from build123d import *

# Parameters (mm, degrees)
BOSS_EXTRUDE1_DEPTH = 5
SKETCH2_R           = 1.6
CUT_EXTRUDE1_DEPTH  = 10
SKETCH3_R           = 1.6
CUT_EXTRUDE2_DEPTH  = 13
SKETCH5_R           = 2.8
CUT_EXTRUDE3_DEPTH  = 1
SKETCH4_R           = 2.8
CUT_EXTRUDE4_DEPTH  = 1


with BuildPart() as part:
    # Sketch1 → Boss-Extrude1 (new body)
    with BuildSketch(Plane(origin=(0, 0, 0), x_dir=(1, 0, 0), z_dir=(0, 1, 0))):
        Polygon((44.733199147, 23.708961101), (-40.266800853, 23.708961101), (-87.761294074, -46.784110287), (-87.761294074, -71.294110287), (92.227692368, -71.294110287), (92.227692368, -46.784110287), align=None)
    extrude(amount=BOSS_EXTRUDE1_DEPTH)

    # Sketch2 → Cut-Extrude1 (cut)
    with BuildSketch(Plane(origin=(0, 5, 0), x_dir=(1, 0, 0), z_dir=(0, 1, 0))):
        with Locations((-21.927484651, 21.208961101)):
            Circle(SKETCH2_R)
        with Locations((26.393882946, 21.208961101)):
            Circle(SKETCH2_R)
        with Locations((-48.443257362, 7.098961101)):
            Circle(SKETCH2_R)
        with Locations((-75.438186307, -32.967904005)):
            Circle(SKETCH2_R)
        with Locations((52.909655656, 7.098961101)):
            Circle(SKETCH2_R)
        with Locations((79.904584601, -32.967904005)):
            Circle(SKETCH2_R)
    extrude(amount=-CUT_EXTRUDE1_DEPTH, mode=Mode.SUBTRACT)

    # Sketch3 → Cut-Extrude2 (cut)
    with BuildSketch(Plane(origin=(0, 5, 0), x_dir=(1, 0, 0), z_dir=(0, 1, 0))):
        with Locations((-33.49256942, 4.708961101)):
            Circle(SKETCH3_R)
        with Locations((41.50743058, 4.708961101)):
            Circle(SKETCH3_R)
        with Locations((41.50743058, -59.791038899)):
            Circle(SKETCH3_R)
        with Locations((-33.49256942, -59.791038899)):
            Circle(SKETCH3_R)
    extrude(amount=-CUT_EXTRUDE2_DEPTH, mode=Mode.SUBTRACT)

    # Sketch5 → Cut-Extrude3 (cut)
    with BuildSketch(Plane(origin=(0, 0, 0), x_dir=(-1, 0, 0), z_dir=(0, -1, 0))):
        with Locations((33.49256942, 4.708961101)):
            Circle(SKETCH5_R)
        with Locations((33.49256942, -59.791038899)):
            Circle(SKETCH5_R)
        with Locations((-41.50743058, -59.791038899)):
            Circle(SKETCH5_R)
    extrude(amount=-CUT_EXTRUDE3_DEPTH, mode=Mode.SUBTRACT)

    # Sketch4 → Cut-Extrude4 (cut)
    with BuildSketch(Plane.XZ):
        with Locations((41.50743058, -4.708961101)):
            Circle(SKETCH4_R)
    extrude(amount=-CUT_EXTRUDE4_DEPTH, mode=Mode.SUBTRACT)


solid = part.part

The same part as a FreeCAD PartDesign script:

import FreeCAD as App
import Part
import Sketcher
Q = App.Units.Quantity

doc = App.newDocument("Part")
params = doc.addObject("Spreadsheet::Sheet", "Params")
for row, (alias, value) in enumerate([
    ("sketch1_width", "85 mm"),
    ("sketch1_length", "85 mm"),
    ("sketch1_height", "24.51 mm"),
    ("pad1_length", "5 mm"),
    ("sketch2_diameter", "3.2 mm"),
    ("pocket1_length", "10 mm"),
    ("sketch3_diameter", "3.2 mm"),
    ("pocket2_length", "13 mm"),
    ("sketch4_diameter", "5.6 mm"),
    ("pocket3_length", "1 mm"),
    ("sketch5_diameter", "5.6 mm"),
    ("pocket4_length", "1 mm"),
], start=1):
    params.set(f"A{row}", alias)
    params.set(f"B{row}", "=" + value)
    params.setAlias(f"B{row}", alias)

body = doc.addObject("PartDesign::Body", "Body")

sketch1 = body.newObject("Sketcher::SketchObject", "Sketch")
sketch1.AttachmentSupport = (doc.getObject("XZ_Plane"), [""])
sketch1.MapMode = "FlatFace"
sketch1.addGeometry([
    Part.LineSegment(App.Vector(45, -24, 0), App.Vector(-40, -24, 0)),
    Part.LineSegment(App.Vector(-40, -24, 0), App.Vector(-88, 47, 0)),
    Part.LineSegment(App.Vector(-88, 47, 0), App.Vector(-88, 71, 0)),
    Part.LineSegment(App.Vector(-88, 71, 0), App.Vector(92, 71, 0)),
    Part.LineSegment(App.Vector(92, 71, 0), App.Vector(92, 47, 0)),
    Part.LineSegment(App.Vector(92, 47, 0), App.Vector(45, -24, 0)),
], False)
sketch1.addConstraint([
    Sketcher.Constraint("Coincident", 0, 2, 1, 1),
    Sketcher.Constraint("Coincident", 1, 2, 2, 1),
    Sketcher.Constraint("Coincident", 2, 2, 3, 1),
    Sketcher.Constraint("Coincident", 3, 2, 4, 1),
    Sketcher.Constraint("Coincident", 4, 2, 5, 1),
    Sketcher.Constraint("Coincident", 5, 2, 0, 1),
    Sketcher.Constraint("Horizontal", 0),
    Sketcher.Constraint("Vertical", 2),
    Sketcher.Constraint("Horizontal", 3),
    Sketcher.Constraint("Vertical", 4),
    Sketcher.Constraint("Horizontal", 1, 2, 4, 2),
    Sketcher.Constraint("Equal", 1, 5),
    Sketcher.Constraint("DistanceX", 0, 2, 0, 1, 85.0),
    Sketcher.Constraint("Distance", 1, 85.0),
    Sketcher.Constraint("DistanceY", 2, 1, 2, 2, 24.51),
    Sketcher.Constraint("Angle", 1, Q("123.97 deg")),
    Sketcher.Constraint("DistanceX", 0, 2, -1, 1, 40.266801),
    Sketcher.Constraint("DistanceY", 0, 2, -1, 1, 23.708961),
])
sketch1.setExpression("Constraints[12]", "Params.sketch1_width")
sketch1.setExpression("Constraints[13]", "Params.sketch1_length")
sketch1.setExpression("Constraints[14]", "Params.sketch1_height")
pad1 = body.newObject("PartDesign::Pad", "Pad")
pad1.Profile = sketch1
pad1.setExpression("Length", "Params.pad1_length")
pad1.Reversed = True

sketch2 = body.newObject("Sketcher::SketchObject", "Sketch001")
sketch2.AttachmentSupport = (doc.getObject("XZ_Plane"), [""])
sketch2.MapMode = "FlatFace"
sketch2.AttachmentOffset = App.Placement(App.Vector(0, 0, -5), App.Rotation())
sketch2.addGeometry([
    Part.Circle(App.Vector(-21.9, -21.2, 0), App.Vector(0, 0, 1), 1.6),
    Part.Circle(App.Vector(26.4, -21.2, 0), App.Vector(0, 0, 1), 1.6),
    Part.Circle(App.Vector(-48.4, -7.1, 0), App.Vector(0, 0, 1), 1.6),
    Part.Circle(App.Vector(-75.4, 33, 0), App.Vector(0, 0, 1), 1.6),
    Part.Circle(App.Vector(52.9, -7.1, 0), App.Vector(0, 0, 1), 1.6),
    Part.Circle(App.Vector(79.9, 33, 0), App.Vector(0, 0, 1), 1.6),
], False)
sketch2.addConstraint([
    Sketcher.Constraint("Equal", 0, 1),
    Sketcher.Constraint("Equal", 1, 2),
    Sketcher.Constraint("Equal", 2, 3),
    Sketcher.Constraint("Equal", 3, 4),
    Sketcher.Constraint("Equal", 4, 5),
    Sketcher.Constraint("Horizontal", 0, 3, 1, 3),
    Sketcher.Constraint("Horizontal", 2, 3, 4, 3),
    Sketcher.Constraint("Horizontal", 3, 3, 5, 3),
    Sketcher.Constraint("Diameter", 0, 3.2),
    Sketcher.Constraint("DistanceY", 0, 3, 2, 3, 14.11),
    Sketcher.Constraint("DistanceX", 3, 3, 0, 3, 53.510702),
    Sketcher.Constraint("DistanceX", 1, 3, 5, 3, 53.510702),
    Sketcher.Constraint("DistanceY", 0, 3, -1, 1, 21.208961),
    Sketcher.Constraint("DistanceX", 2, 3, 1, 3, 74.83714),
    Sketcher.Constraint("DistanceX", 3, 3, 2, 3, 26.994929),
    Sketcher.Constraint("DistanceX", 0, 3, 4, 3, 74.83714),
    Sketcher.Constraint("DistanceX", 0, 3, -1, 1, 21.927485),
    Sketcher.Constraint("DistanceY", -1, 1, 3, 3, 32.967904),
])
sketch2.setExpression("Constraints[8]", "Params.sketch2_diameter")
pocket1 = body.newObject("PartDesign::Pocket", "Pocket")
pocket1.Profile = sketch2
pocket1.setExpression("Length", "Params.pocket1_length")
pocket1.Reversed = True

sketch3 = body.newObject("Sketcher::SketchObject", "Sketch002")
sketch3.AttachmentSupport = (doc.getObject("XZ_Plane"), [""])
sketch3.MapMode = "FlatFace"
sketch3.AttachmentOffset = App.Placement(App.Vector(0, 0, -5), App.Rotation())
sketch3.addGeometry([
    Part.Circle(App.Vector(-33.5, -4.7, 0), App.Vector(0, 0, 1), 1.6),
    Part.Circle(App.Vector(41.5, -4.7, 0), App.Vector(0, 0, 1), 1.6),
    Part.Circle(App.Vector(41.5, 59.8, 0), App.Vector(0, 0, 1), 1.6),
    Part.Circle(App.Vector(-33.5, 59.8, 0), App.Vector(0, 0, 1), 1.6),
], False)
sketch3.addConstraint([
    Sketcher.Constraint("Equal", 0, 1),
    Sketcher.Constraint("Equal", 1, 2),
    Sketcher.Constraint("Equal", 2, 3),
    Sketcher.Constraint("Horizontal", 0, 3, 1, 3),
    Sketcher.Constraint("Horizontal", 2, 3, 3, 3),
    Sketcher.Constraint("Vertical", 1, 3, 2, 3),
    Sketcher.Constraint("Vertical", 0, 3, 3, 3),
    Sketcher.Constraint("Diameter", 0, 3.2),
    Sketcher.Constraint("DistanceX", 0, 3, 1, 3, 75.0),
    Sketcher.Constraint("DistanceY", 1, 3, 2, 3, 64.5),
    Sketcher.Constraint("DistanceX", 0, 3, -1, 1, 33.492569),
    Sketcher.Constraint("DistanceY", 0, 3, -1, 1, 4.708961),
])
sketch3.setExpression("Constraints[7]", "Params.sketch3_diameter")
pocket2 = body.newObject("PartDesign::Pocket", "Pocket001")
pocket2.Profile = sketch3
pocket2.setExpression("Length", "Params.pocket2_length")
pocket2.Reversed = True

sketch4 = body.newObject("Sketcher::SketchObject", "Sketch003")
sketch4.AttachmentSupport = (doc.getObject("XZ_Plane"), [""])
sketch4.MapMode = "FlatFace"
sketch4.addGeometry([
    Part.Circle(App.Vector(-33.5, -4.7, 0), App.Vector(0, 0, 1), 2.8),
    Part.Circle(App.Vector(-33.5, 59.8, 0), App.Vector(0, 0, 1), 2.8),
    Part.Circle(App.Vector(41.5, 59.8, 0), App.Vector(0, 0, 1), 2.8),
], False)
sketch4.addConstraint([
    Sketcher.Constraint("Equal", 0, 1),
    Sketcher.Constraint("Equal", 1, 2),
    Sketcher.Constraint("Horizontal", 1, 3, 2, 3),
    Sketcher.Constraint("Vertical", 0, 3, 1, 3),
    Sketcher.Constraint("Diameter", 0, 5.6),
    Sketcher.Constraint("DistanceX", 1, 3, 2, 3, 75.0),
    Sketcher.Constraint("DistanceY", 0, 3, 1, 3, 64.5),
    Sketcher.Constraint("DistanceX", 0, 3, -1, 1, 33.492569),
    Sketcher.Constraint("DistanceY", 0, 3, -1, 1, 4.708961),
])
sketch4.setExpression("Constraints[4]", "Params.sketch4_diameter")
pocket3 = body.newObject("PartDesign::Pocket", "Pocket002")
pocket3.Profile = sketch4
pocket3.setExpression("Length", "Params.pocket3_length")

sketch5 = body.newObject("Sketcher::SketchObject", "Sketch004")
sketch5.AttachmentSupport = (doc.getObject("XZ_Plane"), [""])
sketch5.MapMode = "FlatFace"
sketch5.addGeometry(Part.Circle(App.Vector(41.5, -4.7, 0), App.Vector(0, 0, 1), 2.8), False)
sketch5.addConstraint([
    Sketcher.Constraint("Diameter", 0, 5.6),
    Sketcher.Constraint("DistanceX", -1, 1, 0, 3, 41.507431),
    Sketcher.Constraint("DistanceY", 0, 3, -1, 1, 4.708961),
])
sketch5.setExpression("Constraints[0]", "Params.sketch5_diameter")
pocket4 = body.newObject("PartDesign::Pocket", "Pocket003")
pocket4.Profile = sketch5
pocket4.setExpression("Length", "Params.pocket4_length")

doc.recompute()
